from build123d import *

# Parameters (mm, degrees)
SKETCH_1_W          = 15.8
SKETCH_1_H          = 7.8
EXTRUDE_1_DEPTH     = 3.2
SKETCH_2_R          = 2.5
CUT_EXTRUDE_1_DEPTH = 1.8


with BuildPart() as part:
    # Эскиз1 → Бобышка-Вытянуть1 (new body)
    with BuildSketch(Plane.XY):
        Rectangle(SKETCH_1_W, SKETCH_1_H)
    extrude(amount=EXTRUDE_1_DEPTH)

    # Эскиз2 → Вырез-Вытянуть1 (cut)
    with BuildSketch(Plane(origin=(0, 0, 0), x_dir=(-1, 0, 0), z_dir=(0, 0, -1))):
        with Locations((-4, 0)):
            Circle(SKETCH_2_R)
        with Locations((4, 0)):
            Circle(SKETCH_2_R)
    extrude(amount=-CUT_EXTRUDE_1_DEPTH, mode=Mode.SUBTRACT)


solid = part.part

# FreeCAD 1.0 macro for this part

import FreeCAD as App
import Part
import Sketcher


def add_polygon(sketch, points):
    """Adds a closed chain of lines whose ends are joined by coincident constraints."""
    first, n = sketch.GeometryCount, len(points)
    for a, b in zip(points, points[1:] + points[:1]):
        sketch.addGeometry(Part.LineSegment(App.Vector(*a, 0), App.Vector(*b, 0)), False)
    for i in range(n):
        sketch.addConstraint(Sketcher.Constraint("Coincident", first + i, 2, first + (i + 1) % n, 1))

doc = App.newDocument("Part")
body = doc.addObject("PartDesign::Body", "Body")

# Sketch on XY plane
sketch1 = body.newObject("Sketcher::SketchObject", "Sketch")
sketch1.AttachmentSupport = (doc.getObject("XY_Plane"), [""])
sketch1.MapMode = "FlatFace"
add_polygon(sketch1, [(-8, 4), (-8, -4), (8, -4), (8, 4)])  # lines 0-3
sketch1.addConstraint([
    Sketcher.Constraint("Vertical", 0),
    Sketcher.Constraint("Horizontal", 1),
    Sketcher.Constraint("Vertical", 2),
    Sketcher.Constraint("Horizontal", 3),
    Sketcher.Constraint("Symmetric", 0, 2, 2, 2, -1, 1),
    Sketcher.Constraint("DistanceX", 1, 1, 1, 2, 15.8),
    Sketcher.Constraint("DistanceY", 0, 2, 0, 1, 7.8),
])
pad1 = body.newObject("PartDesign::Pad", "Pad")
pad1.Profile = sketch1
pad1.Length = 3.2

# Sketch on XY plane
sketch2 = body.newObject("Sketcher::SketchObject", "Sketch001")
sketch2.AttachmentSupport = (doc.getObject("XY_Plane"), [""])
sketch2.MapMode = "FlatFace"
sketch2.addGeometry([
    Part.Circle(App.Vector(4, 0, 0), App.Vector(0, 0, 1), 2.5),
    Part.Circle(App.Vector(-4, 0, 0), App.Vector(0, 0, 1), 2.5),
], False)
sketch2.addConstraint([
    Sketcher.Constraint("Equal", 0, 1),
    Sketcher.Constraint("Symmetric", 0, 3, 1, 3, -1, 1),
    Sketcher.Constraint("PointOnObject", 0, 3, -1),
    Sketcher.Constraint("Diameter", 0, 5.0),
    Sketcher.Constraint("DistanceX", -1, 1, 0, 3, 4.0),
])
pocket1 = body.newObject("PartDesign::Pocket", "Pocket")
pocket1.Profile = sketch2
pocket1.Length = 1.8
pocket1.Reversed = True

doc.recompute()
